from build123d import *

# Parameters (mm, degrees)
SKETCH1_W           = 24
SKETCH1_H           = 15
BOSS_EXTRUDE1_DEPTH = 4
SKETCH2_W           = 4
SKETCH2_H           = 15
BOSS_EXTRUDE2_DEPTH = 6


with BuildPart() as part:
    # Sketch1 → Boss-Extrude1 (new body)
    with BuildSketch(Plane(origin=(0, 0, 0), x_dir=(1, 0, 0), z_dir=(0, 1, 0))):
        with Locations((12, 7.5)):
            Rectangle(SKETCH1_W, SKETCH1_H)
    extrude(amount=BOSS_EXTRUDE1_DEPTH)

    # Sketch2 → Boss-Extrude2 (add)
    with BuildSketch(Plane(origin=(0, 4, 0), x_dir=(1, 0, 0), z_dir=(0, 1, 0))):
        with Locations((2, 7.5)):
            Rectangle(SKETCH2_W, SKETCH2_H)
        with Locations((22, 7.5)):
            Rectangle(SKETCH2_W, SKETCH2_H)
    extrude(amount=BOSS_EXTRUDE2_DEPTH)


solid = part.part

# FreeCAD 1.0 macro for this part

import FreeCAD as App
import Part
import Sketcher
from FreeCAD import Vector
Q = App.Units.Quantity

doc = App.newDocument("Part")
body = doc.addObject("PartDesign::Body", "Body")

# Sketch on XZ plane
sketch1 = body.newObject("Sketcher::SketchObject", "Sketch")
sketch1.AttachmentSupport = (doc.getObject("XZ_Plane"), [""])
sketch1.MapMode = "FlatFace"
sketch1.addGeometry([
    Part.LineSegment(Vector(0, -15, 0), Vector(0, 0, 0)),
    Part.LineSegment(Vector(0, 0, 0), Vector(24, 0, 0)),
    Part.LineSegment(Vector(24, 0, 0), Vector(24, -15, 0)),
    Part.LineSegment(Vector(24, -15, 0), Vector(0, -15, 0)),
], False)
sketch1.addConstraint([
    Sketcher.Constraint("Coincident", 0, 2, 1, 1),
    Sketcher.Constraint("Coincident", 1, 2, 2, 1),
    Sketcher.Constraint("Coincident", 2, 2, 3, 1),
    Sketcher.Constraint("Coincident", 3, 2, 0, 1),
    Sketcher.Constraint("Vertical", 0),
    Sketcher.Constraint("Horizontal", 1),
    Sketcher.Constraint("Vertical", 2),
    Sketcher.Constraint("Horizontal", 3),
    Sketcher.Constraint("Coincident", 0, 2, -1, 1),
    Sketcher.Constraint("DistanceX", 1, 1, 1, 2, Q("24 mm")),
    Sketcher.Constraint("DistanceY", 0, 1, 0, 2, Q("15 mm")),
])
pad1 = body.newObject("PartDesign::Pad", "Pad")
pad1.Profile = sketch1
pad1.Length = 4
pad1.Reversed = True

# Sketch on XZ plane
sketch2 = body.newObject("Sketcher::SketchObject", "Sketch001")
sketch2.AttachmentSupport = (doc.getObject("XZ_Plane"), [""])
sketch2.MapMode = "FlatFace"
sketch2.AttachmentOffset = App.Placement(Vector(0, 0, -4), App.Rotation())
sketch2.addGeometry([
    Part.LineSegment(Vector(0, -15, 0), Vector(0, 0, 0)),  # 0
    Part.LineSegment(Vector(0, 0, 0), Vector(4, 0, 0)),  # 1
    Part.LineSegment(Vector(4, 0, 0), Vector(4, -15, 0)),  # 2
    Part.LineSegment(Vector(4, -15, 0), Vector(0, -15, 0)),  # 3
    Part.LineSegment(Vector(20, -15, 0), Vector(20, 0, 0)),  # 4
    Part.LineSegment(Vector(20, 0, 0), Vector(24, 0, 0)),  # 5
    Part.LineSegment(Vector(24, 0, 0), Vector(24, -15, 0)),  # 6
    Part.LineSegment(Vector(24, -15, 0), Vector(20, -15, 0)),  # 7
], False)
sketch2.addConstraint([
    Sketcher.Constraint("Coincident", 0, 2, 1, 1),
    Sketcher.Constraint("Coincident", 1, 2, 2, 1),
    Sketcher.Constraint("Coincident", 2, 2, 3, 1),
    Sketcher.Constraint("Coincident", 3, 2, 0, 1),
    Sketcher.Constraint("Coincident", 4, 2, 5, 1),
    Sketcher.Constraint("Coincident", 5, 2, 6, 1),
    Sketcher.Constraint("Coincident", 6, 2, 7, 1),
    Sketcher.Constraint("Coincident", 7, 2, 4, 1),
    Sketcher.Constraint("Vertical", 0),
    Sketcher.Constraint("Horizontal", 1),
    Sketcher.Constraint("Vertical", 2),
    Sketcher.Constraint("Horizontal", 3),
    Sketcher.Constraint("Vertical", 4),
    Sketcher.Constraint("Horizontal", 5),
    Sketcher.Constraint("Vertical", 6),
    Sketcher.Constraint("Horizontal", 7),
    Sketcher.Constraint("Coincident", 0, 2, -1, 1),
    Sketcher.Constraint("PointOnObject", 4, 2, -1),
    Sketcher.Constraint("Horizontal", 3, 2, 6, 2),
    Sketcher.Constraint("Equal", 3, 5),
    Sketcher.Constraint("DistanceX", 1, 1, 1, 2, Q("4 mm")),
    Sketcher.Constraint("DistanceY", 0, 1, 0, 2, Q("15 mm")),
    Sketcher.Constraint("DistanceX", -1, 1, 4, 2, Q("20 mm")),
])
pad2 = body.newObject("PartDesign::Pad", "Pad001")
pad2.Profile = sketch2
pad2.Length = 6
pad2.Reversed = True

doc.recompute()
